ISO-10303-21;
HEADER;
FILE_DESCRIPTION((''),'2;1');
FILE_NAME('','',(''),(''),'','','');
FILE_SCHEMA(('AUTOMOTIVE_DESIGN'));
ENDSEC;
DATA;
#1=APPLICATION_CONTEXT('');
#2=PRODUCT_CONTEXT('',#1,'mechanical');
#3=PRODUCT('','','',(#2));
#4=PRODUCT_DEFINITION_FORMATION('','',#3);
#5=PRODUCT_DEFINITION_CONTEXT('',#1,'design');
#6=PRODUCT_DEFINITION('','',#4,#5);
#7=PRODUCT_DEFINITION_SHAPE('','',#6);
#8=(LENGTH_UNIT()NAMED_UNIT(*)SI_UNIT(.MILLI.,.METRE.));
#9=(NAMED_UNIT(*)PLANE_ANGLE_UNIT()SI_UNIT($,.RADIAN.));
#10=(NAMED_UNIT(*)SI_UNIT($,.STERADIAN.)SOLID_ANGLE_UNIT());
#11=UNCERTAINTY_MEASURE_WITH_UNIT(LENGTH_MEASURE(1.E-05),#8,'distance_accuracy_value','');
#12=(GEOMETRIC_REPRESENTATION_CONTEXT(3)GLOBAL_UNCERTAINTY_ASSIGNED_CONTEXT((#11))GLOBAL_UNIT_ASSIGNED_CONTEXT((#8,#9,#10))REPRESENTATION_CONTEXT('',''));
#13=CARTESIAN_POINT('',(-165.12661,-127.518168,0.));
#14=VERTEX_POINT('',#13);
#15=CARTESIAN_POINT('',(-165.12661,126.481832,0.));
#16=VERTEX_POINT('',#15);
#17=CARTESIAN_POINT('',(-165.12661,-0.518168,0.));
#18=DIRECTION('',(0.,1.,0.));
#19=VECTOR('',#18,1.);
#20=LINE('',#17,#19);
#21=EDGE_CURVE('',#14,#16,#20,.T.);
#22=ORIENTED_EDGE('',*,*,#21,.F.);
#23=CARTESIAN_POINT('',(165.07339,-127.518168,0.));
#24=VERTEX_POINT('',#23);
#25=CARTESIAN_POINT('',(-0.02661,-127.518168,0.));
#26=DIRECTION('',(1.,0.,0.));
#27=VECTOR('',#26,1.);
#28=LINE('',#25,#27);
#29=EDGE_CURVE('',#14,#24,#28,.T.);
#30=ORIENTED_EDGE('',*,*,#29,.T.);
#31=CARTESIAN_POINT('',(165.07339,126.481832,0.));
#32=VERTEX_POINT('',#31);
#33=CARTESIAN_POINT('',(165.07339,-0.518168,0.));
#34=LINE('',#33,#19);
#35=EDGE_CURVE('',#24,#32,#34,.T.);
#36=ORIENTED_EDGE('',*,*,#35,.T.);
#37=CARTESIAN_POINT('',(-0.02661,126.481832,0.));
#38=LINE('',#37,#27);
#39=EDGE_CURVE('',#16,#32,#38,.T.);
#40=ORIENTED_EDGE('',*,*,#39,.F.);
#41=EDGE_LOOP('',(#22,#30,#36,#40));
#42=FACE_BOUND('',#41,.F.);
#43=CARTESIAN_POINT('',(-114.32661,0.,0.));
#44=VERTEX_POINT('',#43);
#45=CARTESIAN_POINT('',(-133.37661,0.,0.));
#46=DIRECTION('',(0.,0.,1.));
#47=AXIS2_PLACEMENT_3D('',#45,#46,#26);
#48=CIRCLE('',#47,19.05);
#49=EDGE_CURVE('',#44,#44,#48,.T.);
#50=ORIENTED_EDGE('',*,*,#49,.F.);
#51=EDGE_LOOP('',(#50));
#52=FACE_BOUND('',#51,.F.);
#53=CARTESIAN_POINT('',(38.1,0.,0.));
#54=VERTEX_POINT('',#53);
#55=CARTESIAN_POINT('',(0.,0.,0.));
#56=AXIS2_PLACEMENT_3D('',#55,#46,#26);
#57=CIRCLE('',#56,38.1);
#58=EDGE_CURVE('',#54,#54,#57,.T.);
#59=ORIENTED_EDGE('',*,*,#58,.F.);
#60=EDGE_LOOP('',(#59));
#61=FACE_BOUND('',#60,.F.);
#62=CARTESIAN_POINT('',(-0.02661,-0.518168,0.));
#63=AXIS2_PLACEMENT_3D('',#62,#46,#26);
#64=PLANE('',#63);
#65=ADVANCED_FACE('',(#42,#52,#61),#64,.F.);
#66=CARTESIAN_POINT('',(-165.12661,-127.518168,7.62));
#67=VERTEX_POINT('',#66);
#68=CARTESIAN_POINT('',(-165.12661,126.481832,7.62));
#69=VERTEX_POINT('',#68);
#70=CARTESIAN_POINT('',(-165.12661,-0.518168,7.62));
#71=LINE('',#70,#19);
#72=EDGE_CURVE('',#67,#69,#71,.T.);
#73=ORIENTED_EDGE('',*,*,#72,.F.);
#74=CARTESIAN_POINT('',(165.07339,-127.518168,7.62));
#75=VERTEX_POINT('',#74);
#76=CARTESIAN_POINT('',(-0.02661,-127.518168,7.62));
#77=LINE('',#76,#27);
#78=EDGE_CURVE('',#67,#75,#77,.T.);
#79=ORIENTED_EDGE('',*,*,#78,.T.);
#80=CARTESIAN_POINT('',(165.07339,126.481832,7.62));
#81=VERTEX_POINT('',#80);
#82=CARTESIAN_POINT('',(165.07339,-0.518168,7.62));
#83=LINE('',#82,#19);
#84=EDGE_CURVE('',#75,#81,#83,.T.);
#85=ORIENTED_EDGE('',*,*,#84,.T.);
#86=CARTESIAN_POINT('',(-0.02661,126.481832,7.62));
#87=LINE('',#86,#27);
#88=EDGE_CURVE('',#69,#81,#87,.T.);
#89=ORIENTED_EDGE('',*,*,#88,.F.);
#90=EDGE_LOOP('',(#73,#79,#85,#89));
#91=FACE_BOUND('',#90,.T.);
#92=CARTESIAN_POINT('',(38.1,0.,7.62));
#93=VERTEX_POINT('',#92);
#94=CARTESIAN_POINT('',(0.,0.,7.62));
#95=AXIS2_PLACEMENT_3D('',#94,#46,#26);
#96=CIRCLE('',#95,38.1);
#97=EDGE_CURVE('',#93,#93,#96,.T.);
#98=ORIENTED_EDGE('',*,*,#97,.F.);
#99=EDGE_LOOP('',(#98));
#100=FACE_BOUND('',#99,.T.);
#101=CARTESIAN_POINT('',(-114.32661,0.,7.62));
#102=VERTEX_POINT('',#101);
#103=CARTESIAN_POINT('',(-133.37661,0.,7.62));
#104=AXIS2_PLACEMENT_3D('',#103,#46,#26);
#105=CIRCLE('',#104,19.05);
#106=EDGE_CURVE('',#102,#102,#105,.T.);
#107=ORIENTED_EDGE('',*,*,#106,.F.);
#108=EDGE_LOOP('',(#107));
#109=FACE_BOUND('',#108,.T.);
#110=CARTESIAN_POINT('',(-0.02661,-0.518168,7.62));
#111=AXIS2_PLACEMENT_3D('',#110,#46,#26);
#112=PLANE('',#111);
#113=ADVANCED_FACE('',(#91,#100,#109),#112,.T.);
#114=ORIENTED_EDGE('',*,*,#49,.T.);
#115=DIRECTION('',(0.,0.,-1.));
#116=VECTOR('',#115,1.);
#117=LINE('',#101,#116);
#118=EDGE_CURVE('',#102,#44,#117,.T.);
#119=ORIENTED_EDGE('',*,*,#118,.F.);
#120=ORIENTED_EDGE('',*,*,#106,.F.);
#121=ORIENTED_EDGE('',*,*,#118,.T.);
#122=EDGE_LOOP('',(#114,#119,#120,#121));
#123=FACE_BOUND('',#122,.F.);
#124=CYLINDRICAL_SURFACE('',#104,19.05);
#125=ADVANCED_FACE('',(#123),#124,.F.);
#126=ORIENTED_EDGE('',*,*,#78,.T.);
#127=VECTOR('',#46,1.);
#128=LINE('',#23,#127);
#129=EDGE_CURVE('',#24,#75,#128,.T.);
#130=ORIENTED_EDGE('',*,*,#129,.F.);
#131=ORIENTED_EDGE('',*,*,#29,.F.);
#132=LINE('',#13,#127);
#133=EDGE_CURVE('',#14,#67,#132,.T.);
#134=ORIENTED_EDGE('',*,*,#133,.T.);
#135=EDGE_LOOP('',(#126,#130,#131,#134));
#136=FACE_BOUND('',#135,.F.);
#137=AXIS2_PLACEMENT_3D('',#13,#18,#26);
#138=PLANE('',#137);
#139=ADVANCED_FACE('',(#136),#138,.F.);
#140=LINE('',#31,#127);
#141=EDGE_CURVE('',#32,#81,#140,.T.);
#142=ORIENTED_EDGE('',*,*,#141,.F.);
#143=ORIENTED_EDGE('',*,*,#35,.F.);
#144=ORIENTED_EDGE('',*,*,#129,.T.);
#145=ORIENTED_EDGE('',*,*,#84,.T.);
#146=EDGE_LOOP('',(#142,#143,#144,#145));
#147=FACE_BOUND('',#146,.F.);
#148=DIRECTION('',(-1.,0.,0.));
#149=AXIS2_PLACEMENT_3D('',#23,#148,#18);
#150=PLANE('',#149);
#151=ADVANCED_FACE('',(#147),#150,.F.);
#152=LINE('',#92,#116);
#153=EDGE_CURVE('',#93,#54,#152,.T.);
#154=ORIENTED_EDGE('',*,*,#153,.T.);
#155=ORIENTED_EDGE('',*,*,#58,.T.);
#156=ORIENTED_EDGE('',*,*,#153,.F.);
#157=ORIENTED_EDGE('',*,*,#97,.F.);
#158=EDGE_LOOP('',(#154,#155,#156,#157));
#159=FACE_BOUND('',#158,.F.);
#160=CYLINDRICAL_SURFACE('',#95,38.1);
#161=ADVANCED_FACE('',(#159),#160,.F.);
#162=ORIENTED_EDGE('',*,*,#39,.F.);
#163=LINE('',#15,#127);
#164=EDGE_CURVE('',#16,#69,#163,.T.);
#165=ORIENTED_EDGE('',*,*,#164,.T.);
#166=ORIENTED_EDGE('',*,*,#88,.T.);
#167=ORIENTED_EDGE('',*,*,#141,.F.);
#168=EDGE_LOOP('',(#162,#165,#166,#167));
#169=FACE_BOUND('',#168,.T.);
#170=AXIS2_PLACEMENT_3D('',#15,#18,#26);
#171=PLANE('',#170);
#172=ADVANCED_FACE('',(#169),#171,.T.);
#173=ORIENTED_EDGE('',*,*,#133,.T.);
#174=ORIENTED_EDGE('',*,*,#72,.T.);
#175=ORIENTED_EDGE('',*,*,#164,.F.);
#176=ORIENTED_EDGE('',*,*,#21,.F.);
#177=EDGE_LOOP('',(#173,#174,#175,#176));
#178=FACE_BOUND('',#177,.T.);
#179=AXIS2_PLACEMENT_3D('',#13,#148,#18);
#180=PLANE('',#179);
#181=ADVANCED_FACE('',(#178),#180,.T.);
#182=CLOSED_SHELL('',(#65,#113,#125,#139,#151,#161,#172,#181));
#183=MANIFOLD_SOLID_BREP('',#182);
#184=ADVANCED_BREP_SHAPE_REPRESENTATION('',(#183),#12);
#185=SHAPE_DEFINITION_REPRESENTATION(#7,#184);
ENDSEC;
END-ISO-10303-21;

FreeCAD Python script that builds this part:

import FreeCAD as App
import Part
import Sketcher

V = App.Vector
Q = App.Units.Quantity


def add_polygon(sketch, points):
    """Adds a closed chain of lines whose ends are joined by coincident constraints."""
    first, n = sketch.GeometryCount, len(points)
    for a, b in zip(points, points[1:] + points[:1]):
        sketch.addGeometry(Part.LineSegment(App.Vector(*a, 0), App.Vector(*b, 0)), False)
    for i in range(n):
        sketch.addConstraint(Sketcher.Constraint("Coincident", first + i, 2, first + (i + 1) % n, 1))

doc = App.newDocument("Part")
params = doc.addObject("Spreadsheet::Sheet", "Params")
for row, (alias, value) in enumerate([
    ("sketch1_width", "13 in"),
    ("sketch1_height", "10 in"),
    ("pad1_length", "0.3 in"),
    ("sketch2_diameter", "3 in"),
    ("sketch3_diameter", "1.5 in"),
], start=1):
    params.set(f"A{row}", alias)
    params.set(f"B{row}", "=" + value)
    params.setAlias(f"B{row}", alias)

body = doc.addObject("PartDesign::Body", "Body")

# Sketch on XY plane
sketch1 = body.newObject("Sketcher::SketchObject", "Sketch")
sketch1.AttachmentSupport = (doc.getObject("XY_Plane"), [""])
sketch1.MapMode = "FlatFace"
add_polygon(sketch1, [(-165, 126), (-165, -128), (165, -128), (165, 126)])  # lines 0-3
sketch1.addConstraint([
    Sketcher.Constraint("Vertical", 0),
    Sketcher.Constraint("Horizontal", 1),
    Sketcher.Constraint("Vertical", 2),
    Sketcher.Constraint("Horizontal", 3),
    Sketcher.Constraint("DistanceX", 1, 1, 1, 2, Q("13 in")),
    Sketcher.Constraint("DistanceY", 0, 2, 0, 1, Q("10 in")),
    Sketcher.Constraint("DistanceX", 0, 2, -1, 1, 165.12661),
    Sketcher.Constraint("DistanceY", 0, 2, -1, 1, 127.518168),
])
sketch1.setExpression("Constraints[8]", "Params.sketch1_width")
sketch1.setExpression("Constraints[9]", "Params.sketch1_height")
pad1 = body.newObject("PartDesign::Pad", "Pad")
pad1.Profile = sketch1
pad1.setExpression("Length", "Params.pad1_length")

# Sketch on XY plane
sketch2 = body.newObject("Sketcher::SketchObject", "Sketch001")
sketch2.AttachmentSupport = (doc.getObject("XY_Plane"), [""])
sketch2.MapMode = "FlatFace"
sketch2.AttachmentOffset = App.Placement(V(0, 0, 0.3 * 25.4), App.Rotation())
sketch2.addGeometry(Part.Circle(V(0, 0, 0), V(0, 0, 1), 38), False)
sketch2.addConstraint([
    Sketcher.Constraint("Coincident", 0, 3, -1, 1),
    Sketcher.Constraint("Diameter", 0, Q("3 in")),
])
sketch2.setExpression("Constraints[1]", "Params.sketch2_diameter")
pocket1 = body.newObject("PartDesign::Pocket", "Pocket")
pocket1.Profile = sketch2
pocket1.Type = "ThroughAll"

# Sketch on XY plane
sketch3 = body.newObject("Sketcher::SketchObject", "Sketch002")
sketch3.AttachmentSupport = (doc.getObject("XY_Plane"), [""])
sketch3.MapMode = "FlatFace"
sketch3.AttachmentOffset = App.Placement(V(0, 0, 0.3 * 25.4), App.Rotation())
sketch3.addGeometry(Part.Circle(V(-133, 0, 0), V(0, 0, 1), 19), False)
sketch3.addConstraint([
    Sketcher.Constraint("PointOnObject", 0, 3, -1),
    Sketcher.Constraint("Diameter", 0, Q("1.5 in")),
    Sketcher.Constraint("DistanceX", 0, 3, -1, 1, 133.37661),
])
sketch3.setExpression("Constraints[1]", "Params.sketch3_diameter")
pocket2 = body.newObject("PartDesign::Pocket", "Pocket001")
pocket2.Profile = sketch3
pocket2.Type = "ThroughAll"

doc.recompute()
